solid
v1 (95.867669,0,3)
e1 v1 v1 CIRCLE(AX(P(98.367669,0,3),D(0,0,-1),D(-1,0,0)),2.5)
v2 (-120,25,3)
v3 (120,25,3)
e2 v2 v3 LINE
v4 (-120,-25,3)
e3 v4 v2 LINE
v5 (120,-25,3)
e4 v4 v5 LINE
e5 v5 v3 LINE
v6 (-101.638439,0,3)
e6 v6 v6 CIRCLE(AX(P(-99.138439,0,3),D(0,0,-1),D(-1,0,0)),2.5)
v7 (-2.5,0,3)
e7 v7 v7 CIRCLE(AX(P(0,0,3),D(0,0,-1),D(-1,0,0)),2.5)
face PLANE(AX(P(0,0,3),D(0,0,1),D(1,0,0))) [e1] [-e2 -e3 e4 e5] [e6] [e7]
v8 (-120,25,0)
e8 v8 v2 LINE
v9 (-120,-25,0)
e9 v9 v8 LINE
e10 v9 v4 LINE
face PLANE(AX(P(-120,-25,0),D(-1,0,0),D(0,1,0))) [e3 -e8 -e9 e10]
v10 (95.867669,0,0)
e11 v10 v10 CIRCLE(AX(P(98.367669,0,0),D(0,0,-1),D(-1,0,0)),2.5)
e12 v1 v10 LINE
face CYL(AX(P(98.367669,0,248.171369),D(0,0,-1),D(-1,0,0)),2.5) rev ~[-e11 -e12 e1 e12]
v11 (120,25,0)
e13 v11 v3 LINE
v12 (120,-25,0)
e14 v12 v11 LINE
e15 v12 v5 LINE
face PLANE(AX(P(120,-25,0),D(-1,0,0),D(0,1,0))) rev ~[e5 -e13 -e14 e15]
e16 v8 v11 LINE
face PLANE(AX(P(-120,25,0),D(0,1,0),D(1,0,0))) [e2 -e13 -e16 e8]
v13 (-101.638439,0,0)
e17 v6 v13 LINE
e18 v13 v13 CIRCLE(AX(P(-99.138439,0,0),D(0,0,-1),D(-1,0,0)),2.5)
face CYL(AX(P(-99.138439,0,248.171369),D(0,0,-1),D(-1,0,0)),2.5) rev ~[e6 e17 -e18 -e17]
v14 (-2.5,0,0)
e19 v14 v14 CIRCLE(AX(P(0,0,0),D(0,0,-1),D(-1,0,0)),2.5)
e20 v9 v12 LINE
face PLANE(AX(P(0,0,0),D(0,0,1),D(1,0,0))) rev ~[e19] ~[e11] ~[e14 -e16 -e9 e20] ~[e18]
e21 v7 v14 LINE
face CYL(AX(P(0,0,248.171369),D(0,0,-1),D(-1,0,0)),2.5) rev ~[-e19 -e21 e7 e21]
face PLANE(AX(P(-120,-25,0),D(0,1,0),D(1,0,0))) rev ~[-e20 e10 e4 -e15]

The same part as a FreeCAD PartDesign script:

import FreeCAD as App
import Part
import Sketcher

V = App.Vector
Q = App.Units.Quantity

doc = App.newDocument("Part")
body = doc.addObject("PartDesign::Body", "Body")

sketch1 = doc.addObject("Sketcher::SketchObject", "Sketch")
body.addObject(sketch1)
sketch1.AttachmentSupport = (doc.XY_Plane, [""])
sketch1.MapMode = "FlatFace"
sketch1.addGeometry([
    Part.LineSegment(V(-120, 25, 0), V(-120, -25, 0)),
    Part.LineSegment(V(-120, -25, 0), V(120, -25, 0)),
    Part.LineSegment(V(120, -25, 0), V(120, 25, 0)),
    Part.LineSegment(V(120, 25, 0), V(-120, 25, 0)),
], False)
sketch1.addConstraint([
    Sketcher.Constraint("Coincident", 0, 2, 1, 1),
    Sketcher.Constraint("Coincident", 1, 2, 2, 1),
    Sketcher.Constraint("Coincident", 2, 2, 3, 1),
    Sketcher.Constraint("Coincident", 3, 2, 0, 1),
    Sketcher.Constraint("Vertical", 0),
    Sketcher.Constraint("Horizontal", 1),
    Sketcher.Constraint("Vertical", 2),
    Sketcher.Constraint("Horizontal", 3),
    Sketcher.Constraint("Symmetric", 0, 2, 2, 2, -1, 1),
    Sketcher.Constraint("DistanceX", 1, 1, 1, 2, Q("240 mm")),
    Sketcher.Constraint("DistanceY", 0, 2, 0, 1, Q("50 mm")),
])
pad1 = doc.addObject("PartDesign::Pad", "Pad")
body.addObject(pad1)
pad1.Profile = sketch1
pad1.Length = 3

sketch2 = doc.addObject("Sketcher::SketchObject", "Sketch001")
body.addObject(sketch2)
sketch2.AttachmentSupport = (doc.XY_Plane, [""])
sketch2.MapMode = "FlatFace"
sketch2.AttachmentOffset = App.Placement(V(0, 0, 3), App.Rotation())
sketch2.addGeometry(Part.Circle(V(-99.1, 0, 0), V(0, 0, 1), 2.5), False)
sketch2.addConstraint([
    Sketcher.Constraint("PointOnObject", 0, 3, -1),
    Sketcher.Constraint("Diameter", 0, Q("5 mm")),
    Sketcher.Constraint("DistanceX", 0, 3, -1, 1, Q("99.138439 mm")),
])
doc.recompute()
hole = doc.addObject("PartDesign::Hole", "Hole")
body.addObject(hole)
hole.Profile = sketch2
hole.ThreadType = "None"
hole.Diameter = 5
hole.DepthType = "ThroughAll"

sketch3 = doc.addObject("Sketcher::SketchObject", "Sketch002")
body.addObject(sketch3)
sketch3.AttachmentSupport = (doc.XY_Plane, [""])
sketch3.MapMode = "FlatFace"
sketch3.AttachmentOffset = App.Placement(V(0, 0, 3), App.Rotation())
sketch3.addGeometry(Part.Circle(V(0, 0, 0), V(0, 0, 1), 2.5), False)
sketch3.addConstraint([
    Sketcher.Constraint("Coincident", 0, 3, -1, 1),
    Sketcher.Constraint("Diameter", 0, Q("5 mm")),
])
doc.recompute()
hole2 = doc.addObject("PartDesign::Hole", "Hole001")
body.addObject(hole2)
hole2.Profile = sketch3
hole2.ThreadType = "None"
hole2.Diameter = 5
hole2.DepthType = "ThroughAll"

sketch4 = doc.addObject("Sketcher::SketchObject", "Sketch003")
body.addObject(sketch4)
sketch4.AttachmentSupport = (doc.XY_Plane, [""])
sketch4.MapMode = "FlatFace"
sketch4.AttachmentOffset = App.Placement(V(0, 0, 3), App.Rotation())
sketch4.addGeometry(Part.Circle(V(98.4, 0, 0), V(0, 0, 1), 2.5), False)
sketch4.addConstraint([
    Sketcher.Constraint("PointOnObject", 0, 3, -1),
    Sketcher.Constraint("Diameter", 0, Q("5 mm")),
    Sketcher.Constraint("DistanceX", -1, 1, 0, 3, Q("98.367669 mm")),
])
doc.recompute()
hole3 = doc.addObject("PartDesign::Hole", "Hole002")
body.addObject(hole3)
hole3.Profile = sketch4
hole3.ThreadType = "None"
hole3.Diameter = 5
hole3.DepthType = "ThroughAll"

doc.recompute()
